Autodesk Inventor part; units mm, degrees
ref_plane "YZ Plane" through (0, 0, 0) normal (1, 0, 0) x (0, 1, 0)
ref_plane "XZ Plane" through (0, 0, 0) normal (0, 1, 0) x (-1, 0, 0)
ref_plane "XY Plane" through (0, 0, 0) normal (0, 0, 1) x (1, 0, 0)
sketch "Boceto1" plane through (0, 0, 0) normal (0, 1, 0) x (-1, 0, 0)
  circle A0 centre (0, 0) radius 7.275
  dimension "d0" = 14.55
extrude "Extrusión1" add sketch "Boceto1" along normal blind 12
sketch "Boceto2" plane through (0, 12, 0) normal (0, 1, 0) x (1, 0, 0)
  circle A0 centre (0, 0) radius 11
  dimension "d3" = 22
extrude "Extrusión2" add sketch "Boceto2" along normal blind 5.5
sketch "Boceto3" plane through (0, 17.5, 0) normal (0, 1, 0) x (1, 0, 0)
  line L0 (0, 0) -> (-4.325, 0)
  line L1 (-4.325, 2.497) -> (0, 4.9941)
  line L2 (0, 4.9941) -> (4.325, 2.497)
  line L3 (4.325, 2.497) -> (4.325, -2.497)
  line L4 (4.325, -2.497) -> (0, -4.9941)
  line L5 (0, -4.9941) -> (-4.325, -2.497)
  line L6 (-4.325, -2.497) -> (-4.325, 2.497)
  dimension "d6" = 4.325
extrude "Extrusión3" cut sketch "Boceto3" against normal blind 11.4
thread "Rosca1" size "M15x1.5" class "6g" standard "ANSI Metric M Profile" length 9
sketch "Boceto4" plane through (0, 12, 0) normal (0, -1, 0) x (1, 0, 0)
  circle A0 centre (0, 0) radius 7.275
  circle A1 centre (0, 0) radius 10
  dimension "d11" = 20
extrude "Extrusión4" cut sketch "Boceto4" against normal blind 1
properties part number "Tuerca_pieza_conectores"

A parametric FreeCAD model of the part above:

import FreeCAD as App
import Part
import Sketcher

V = App.Vector
Q = App.Units.Quantity

doc = App.newDocument("Part")
body = doc.addObject("PartDesign::Body", "Body")

sketch1 = doc.addObject("Sketcher::SketchObject", "Sketch")
body.addObject(sketch1)
sketch1.AttachmentSupport = (doc.XZ_Plane, [""])
sketch1.MapMode = "FlatFace"
sketch1.addGeometry(Part.Circle(V(0, 0, 0), V(0, 0, 1), 7), False)
sketch1.addConstraint(Sketcher.Constraint("Coincident", 0, 3, -1, 1))
sketch1.addConstraint(Sketcher.Constraint("Diameter", 0, Q("14.55 mm")))
pad1 = doc.addObject("PartDesign::Pad", "Pad")
body.addObject(pad1)
pad1.Profile = sketch1
pad1.Length = 12
pad1.Reversed = True

sketch2 = doc.addObject("Sketcher::SketchObject", "Sketch001")
body.addObject(sketch2)
sketch2.AttachmentSupport = (doc.XZ_Plane, [""])
sketch2.MapMode = "FlatFace"
sketch2.AttachmentOffset = App.Placement(V(0, 0, -12), App.Rotation())
sketch2.addGeometry(Part.Circle(V(0, 0, 0), V(0, 0, 1), 11), False)
sketch2.addConstraint(Sketcher.Constraint("Coincident", 0, 3, -1, 1))
sketch2.addConstraint(Sketcher.Constraint("Diameter", 0, Q("22 mm")))
pad2 = doc.addObject("PartDesign::Pad", "Pad001")
body.addObject(pad2)
pad2.Profile = sketch2
pad2.Length = 5.5
pad2.Reversed = True

sketch3 = doc.addObject("Sketcher::SketchObject", "Sketch002")
body.addObject(sketch3)
sketch3.AttachmentSupport = (doc.XZ_Plane, [""])
sketch3.MapMode = "FlatFace"
sketch3.AttachmentOffset = App.Placement(V(0, 0, -17.5), App.Rotation())
sketch3.addGeometry(Part.LineSegment(V(0, -5, 0), V(-4.3, -2.5, 0)), False)
sketch3.addGeometry(Part.LineSegment(V(-4.3, -2.5, 0), V(-4.3, 2.5, 0)), False)
sketch3.addGeometry(Part.LineSegment(V(-4.3, 2.5, 0), V(0, 5, 0)), False)
sketch3.addGeometry(Part.LineSegment(V(0, 5, 0), V(4.3, 2.5, 0)), False)
sketch3.addGeometry(Part.LineSegment(V(4.3, 2.5, 0), V(4.3, -2.5, 0)), False)
sketch3.addGeometry(Part.LineSegment(V(4.3, -2.5, 0), V(0, -5, 0)), False)
sketch3.addConstraint(Sketcher.Constraint("Coincident", 0, 2, 1, 1))
sketch3.addConstraint(Sketcher.Constraint("Coincident", 1, 2, 2, 1))
sketch3.addConstraint(Sketcher.Constraint("Coincident", 2, 2, 3, 1))
sketch3.addConstraint(Sketcher.Constraint("Coincident", 3, 2, 4, 1))
sketch3.addConstraint(Sketcher.Constraint("Coincident", 4, 2, 5, 1))
sketch3.addConstraint(Sketcher.Constraint("Coincident", 5, 2, 0, 1))
sketch3.addConstraint(Sketcher.Constraint("Vertical", 1))
sketch3.addConstraint(Sketcher.Constraint("Vertical", 4))
sketch3.addConstraint(Sketcher.Constraint("Symmetric", 0, 2, 3, 2, -1, 1))
sketch3.addConstraint(Sketcher.Constraint("Symmetric", 2, 2, 5, 2, -1, 1))
sketch3.addConstraint(Sketcher.Constraint("PointOnObject", 2, 2, -2))
sketch3.addConstraint(Sketcher.Constraint("Parallel", 2, 5))
sketch3.addConstraint(Sketcher.Constraint("Horizontal", 1, 2, 3, 2))
sketch3.addConstraint(Sketcher.Constraint("Angle", 0, Q("149.9994 deg")))
sketch3.addConstraint(Sketcher.Constraint("DistanceX", 0, 2, -1, 1, Q("4.325 mm")))
sketch3.addConstraint(Sketcher.Constraint("DistanceY", 1, 1, 1, 2, Q("4.994 mm")))
pocket1 = doc.addObject("PartDesign::Pocket", "Pocket")
body.addObject(pocket1)
pocket1.Profile = sketch3
pocket1.Length = 11.4
pocket1.Reversed = True

sketch4 = doc.addObject("Sketcher::SketchObject", "Sketch003")
body.addObject(sketch4)
sketch4.AttachmentSupport = (doc.XZ_Plane, [""])
sketch4.MapMode = "FlatFace"
sketch4.AttachmentOffset = App.Placement(V(0, 0, -12), App.Rotation())
sketch4.addGeometry(Part.Circle(V(0, 0, 0), V(0, 0, 1), 10), False)
sketch4.addGeometry(Part.Circle(V(0, 0, 0), V(0, 0, 1), 7), False)
sketch4.addConstraint(Sketcher.Constraint("Coincident", 0, 3, -1, 1))
sketch4.addConstraint(Sketcher.Constraint("Coincident", 1, 3, -1, 1))
sketch4.addConstraint(Sketcher.Constraint("Diameter", 0, Q("20 mm")))
sketch4.addConstraint(Sketcher.Constraint("Diameter", 1, Q("14.55 mm")))
pocket2 = doc.addObject("PartDesign::Pocket", "Pocket001")
body.addObject(pocket2)
pocket2.Profile = sketch4
pocket2.Length = 1

doc.recompute()
